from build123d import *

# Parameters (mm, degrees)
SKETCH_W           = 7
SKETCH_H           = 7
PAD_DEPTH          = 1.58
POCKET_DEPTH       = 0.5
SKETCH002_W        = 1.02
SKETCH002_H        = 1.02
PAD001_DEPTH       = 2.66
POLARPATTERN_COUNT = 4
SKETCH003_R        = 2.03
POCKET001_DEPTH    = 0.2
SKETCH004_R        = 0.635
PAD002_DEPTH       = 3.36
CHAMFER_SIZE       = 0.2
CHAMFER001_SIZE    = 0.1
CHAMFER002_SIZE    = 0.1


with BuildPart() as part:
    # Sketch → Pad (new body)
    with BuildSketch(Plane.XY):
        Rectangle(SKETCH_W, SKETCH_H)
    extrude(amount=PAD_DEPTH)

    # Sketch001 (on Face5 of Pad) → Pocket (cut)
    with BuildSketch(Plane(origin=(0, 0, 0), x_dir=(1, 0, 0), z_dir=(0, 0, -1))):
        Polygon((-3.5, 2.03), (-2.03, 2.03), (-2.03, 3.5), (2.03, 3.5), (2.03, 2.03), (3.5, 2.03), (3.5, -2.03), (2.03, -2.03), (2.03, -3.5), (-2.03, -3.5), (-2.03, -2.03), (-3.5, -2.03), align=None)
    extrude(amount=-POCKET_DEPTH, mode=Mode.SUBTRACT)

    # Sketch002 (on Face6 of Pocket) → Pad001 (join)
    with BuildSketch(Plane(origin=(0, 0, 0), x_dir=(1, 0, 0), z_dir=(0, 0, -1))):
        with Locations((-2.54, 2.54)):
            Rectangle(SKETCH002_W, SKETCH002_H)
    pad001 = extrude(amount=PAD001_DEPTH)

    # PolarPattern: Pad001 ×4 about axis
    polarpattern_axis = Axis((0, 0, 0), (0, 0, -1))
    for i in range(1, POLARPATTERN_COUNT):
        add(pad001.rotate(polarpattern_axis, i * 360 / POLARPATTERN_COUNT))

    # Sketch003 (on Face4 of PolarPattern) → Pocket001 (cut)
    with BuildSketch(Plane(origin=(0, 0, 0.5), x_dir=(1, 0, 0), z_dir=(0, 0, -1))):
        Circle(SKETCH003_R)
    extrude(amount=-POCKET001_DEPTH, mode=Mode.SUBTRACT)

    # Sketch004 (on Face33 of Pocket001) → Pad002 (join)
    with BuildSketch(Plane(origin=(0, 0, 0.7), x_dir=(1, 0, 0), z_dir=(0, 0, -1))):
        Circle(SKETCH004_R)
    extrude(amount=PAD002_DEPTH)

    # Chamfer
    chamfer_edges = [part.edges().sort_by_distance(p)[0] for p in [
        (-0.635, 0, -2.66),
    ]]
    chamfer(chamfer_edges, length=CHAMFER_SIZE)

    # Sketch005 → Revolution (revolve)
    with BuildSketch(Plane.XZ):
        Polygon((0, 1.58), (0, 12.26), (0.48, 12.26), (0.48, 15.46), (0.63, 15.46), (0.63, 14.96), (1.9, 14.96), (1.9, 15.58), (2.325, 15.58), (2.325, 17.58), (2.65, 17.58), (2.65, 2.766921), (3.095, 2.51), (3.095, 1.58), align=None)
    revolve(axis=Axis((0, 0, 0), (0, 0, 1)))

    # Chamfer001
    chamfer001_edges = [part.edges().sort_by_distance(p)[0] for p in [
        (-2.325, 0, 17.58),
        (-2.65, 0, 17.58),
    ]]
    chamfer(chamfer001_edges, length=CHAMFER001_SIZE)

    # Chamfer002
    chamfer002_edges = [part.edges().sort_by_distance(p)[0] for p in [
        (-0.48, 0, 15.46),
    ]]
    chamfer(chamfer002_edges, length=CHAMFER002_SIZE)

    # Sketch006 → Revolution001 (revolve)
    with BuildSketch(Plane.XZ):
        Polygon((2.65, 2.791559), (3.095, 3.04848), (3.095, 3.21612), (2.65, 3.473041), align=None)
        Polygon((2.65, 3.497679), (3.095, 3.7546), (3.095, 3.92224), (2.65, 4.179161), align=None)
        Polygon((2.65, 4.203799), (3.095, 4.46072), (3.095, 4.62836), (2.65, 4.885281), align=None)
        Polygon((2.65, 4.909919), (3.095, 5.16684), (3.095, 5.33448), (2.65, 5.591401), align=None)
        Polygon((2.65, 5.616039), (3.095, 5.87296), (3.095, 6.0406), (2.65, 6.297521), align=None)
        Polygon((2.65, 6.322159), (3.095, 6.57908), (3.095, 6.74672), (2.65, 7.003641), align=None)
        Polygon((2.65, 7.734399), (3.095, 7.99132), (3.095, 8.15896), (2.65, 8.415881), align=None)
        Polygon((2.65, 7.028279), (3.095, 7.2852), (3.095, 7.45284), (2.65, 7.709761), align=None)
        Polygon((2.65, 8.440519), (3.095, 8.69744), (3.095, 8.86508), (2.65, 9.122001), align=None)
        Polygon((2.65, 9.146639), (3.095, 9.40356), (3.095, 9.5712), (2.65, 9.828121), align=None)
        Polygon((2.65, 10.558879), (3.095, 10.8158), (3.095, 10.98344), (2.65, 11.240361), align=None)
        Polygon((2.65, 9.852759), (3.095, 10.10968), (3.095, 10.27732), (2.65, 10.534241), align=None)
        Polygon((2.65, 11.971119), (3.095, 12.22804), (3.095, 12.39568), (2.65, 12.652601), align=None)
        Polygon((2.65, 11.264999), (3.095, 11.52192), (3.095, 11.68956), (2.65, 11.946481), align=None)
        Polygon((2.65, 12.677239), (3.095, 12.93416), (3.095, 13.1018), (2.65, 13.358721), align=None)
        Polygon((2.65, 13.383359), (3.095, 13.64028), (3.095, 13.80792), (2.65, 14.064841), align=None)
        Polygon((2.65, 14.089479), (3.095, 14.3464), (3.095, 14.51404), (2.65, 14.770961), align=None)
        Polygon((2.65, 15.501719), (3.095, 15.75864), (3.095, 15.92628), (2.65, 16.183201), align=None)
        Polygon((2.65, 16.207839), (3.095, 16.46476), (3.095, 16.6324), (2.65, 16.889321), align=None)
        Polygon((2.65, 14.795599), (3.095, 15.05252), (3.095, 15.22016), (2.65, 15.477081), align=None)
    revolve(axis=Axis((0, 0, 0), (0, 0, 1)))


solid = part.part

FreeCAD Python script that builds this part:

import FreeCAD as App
import Part
import Sketcher

V = App.Vector
Q = App.Units.Quantity


def edges_at(feature, points):
    """Names of the edges that pass closest to the given points."""
    edges = feature.Shape.Edges
    near = lambda p: min(range(len(edges)), key=lambda i: edges[i].distToShape(Part.Vertex(*p))[0])
    return sorted({f"Edge{near(p) + 1}" for p in points})


def add_polygon(sketch, points):
    """Adds a closed chain of lines whose ends are joined by coincident constraints."""
    first, n = sketch.GeometryCount, len(points)
    for a, b in zip(points, points[1:] + points[:1]):
        sketch.addGeometry(Part.LineSegment(App.Vector(*a, 0), App.Vector(*b, 0)), False)
    for i in range(n):
        sketch.addConstraint(Sketcher.Constraint("Coincident", first + i, 2, first + (i + 1) % n, 1))

doc = App.newDocument("Part")
body = doc.addObject("PartDesign::Body", "Body")

# Sketch on XY plane
sketch1 = body.newObject("Sketcher::SketchObject", "Sketch")
sketch1.AttachmentSupport = (doc.getObject("XY_Plane"), [""])
sketch1.MapMode = "FlatFace"
add_polygon(sketch1, [(-4, 4), (-4, -4), (4, -4), (4, 4)])  # lines 0-3
sketch1.addConstraint([
    Sketcher.Constraint("Vertical", 0),
    Sketcher.Constraint("Horizontal", 1),
    Sketcher.Constraint("Vertical", 2),
    Sketcher.Constraint("Horizontal", 3),
    Sketcher.Constraint("Symmetric", 0, 2, 2, 2, -1, 1),
    Sketcher.Constraint("Equal", 3, 0),
    Sketcher.Constraint("DistanceX", 1, 1, 1, 2, 7.0),
])
pad1 = body.newObject("PartDesign::Pad", "Pad")
pad1.Profile = sketch1
pad1.Length = 1.58

# Sketch on XY plane
sketch2 = body.newObject("Sketcher::SketchObject", "Sketch001")
sketch2.AttachmentSupport = (doc.getObject("XY_Plane"), [""])
sketch2.MapMode = "FlatFace"
add_polygon(sketch2, [(-2, -2), (-3.5, -2), (-3.5, 2), (-2, 2), (-2, 3.5), (2, 3.5), (2, 2), (3.5, 2), (3.5, -2), (2, -2), (2, -3.5), (-2, -3.5)])  # lines 0-11
sketch2.addConstraint([
    Sketcher.Constraint("Horizontal", 0),
    Sketcher.Constraint("Vertical", 1),
    Sketcher.Constraint("Horizontal", 2),
    Sketcher.Constraint("Vertical", 3),
    Sketcher.Constraint("Horizontal", 4),
    Sketcher.Constraint("Vertical", 5),
    Sketcher.Constraint("Horizontal", 6),
    Sketcher.Constraint("Vertical", 7),
    Sketcher.Constraint("Horizontal", 8),
    Sketcher.Constraint("Vertical", 9),
    Sketcher.Constraint("Horizontal", 10),
    Sketcher.Constraint("Vertical", 11),
    Sketcher.Constraint("Symmetric", 0, 2, 6, 2, -1, 1),
    Sketcher.Constraint("Symmetric", 2, 2, 8, 2, -1, 1),
    Sketcher.Constraint("Symmetric", 4, 2, 10, 2, -1, 1),
    Sketcher.Constraint("Symmetric", 2, 2, 5, 2, -2),
    Sketcher.Constraint("Equal", 10, 1),
    Sketcher.Constraint("Equal", 8, 3),
    Sketcher.Constraint("DistanceX", 1, 2, 6, 2, 7.0),
    Sketcher.Constraint("DistanceX", 0, 2, 0, 1, 1.47),
])
pocket1 = body.newObject("PartDesign::Pocket", "Pocket")
pocket1.Profile = sketch2
pocket1.Length = 0.5
pocket1.Reversed = True

# Sketch on XY plane
sketch3 = body.newObject("Sketcher::SketchObject", "Sketch002")
sketch3.AttachmentSupport = (doc.getObject("XY_Plane"), [""])
sketch3.MapMode = "FlatFace"
add_polygon(sketch3, [(-3, -3), (-3, -2), (-2, -2), (-2, -3)])  # lines 0-3
sketch3.addConstraint([
    Sketcher.Constraint("Vertical", 0),
    Sketcher.Constraint("Horizontal", 1),
    Sketcher.Constraint("Vertical", 2),
    Sketcher.Constraint("Horizontal", 3),
    Sketcher.Constraint("Equal", 3, 0),
    Sketcher.Constraint("DistanceX", 1, 1, 1, 2, 1.02),
    Sketcher.Constraint("DistanceX", 0, 2, -1, 1, 3.05),
    Sketcher.Constraint("DistanceY", 0, 2, -1, 1, 2.03),
])
pad2 = body.newObject("PartDesign::Pad", "Pad001")
pad2.Profile = sketch3
pad2.Length = 2.66
pad2.Reversed = True
doc.recompute()

polarpattern = body.newObject("PartDesign::PolarPattern", "PolarPattern")
polarpattern.Originals = [pad2]
polarpattern.Axis = (doc.getObject("Z_Axis"), [""])
polarpattern.Angle = 360
polarpattern.Occurrences = 4
body.Tip = polarpattern

# Sketch on XY plane
sketch4 = body.newObject("Sketcher::SketchObject", "Sketch003")
sketch4.AttachmentSupport = (doc.getObject("XY_Plane"), [""])
sketch4.MapMode = "FlatFace"
sketch4.AttachmentOffset = App.Placement(V(0, 0, 0.5), App.Rotation())
sketch4.addGeometry(Part.Circle(V(0, 0, 0), V(0, 0, 1), 2), False)
sketch4.addConstraint([
    Sketcher.Constraint("Coincident", 0, 3, -1, 1),
    Sketcher.Constraint("Diameter", 0, 4.06),
])
pocket2 = body.newObject("PartDesign::Pocket", "Pocket001")
pocket2.Profile = sketch4
pocket2.Length = 0.2
pocket2.Reversed = True

# Sketch on XY plane
sketch5 = body.newObject("Sketcher::SketchObject", "Sketch004")
sketch5.AttachmentSupport = (doc.getObject("XY_Plane"), [""])
sketch5.MapMode = "FlatFace"
sketch5.AttachmentOffset = App.Placement(V(0, 0, 0.7), App.Rotation())
sketch5.addGeometry(Part.Circle(V(0, 0, 0), V(0, 0, 1), 0.6), False)
sketch5.addConstraint([
    Sketcher.Constraint("Coincident", 0, 3, -1, 1),
    Sketcher.Constraint("Diameter", 0, 1.27),
])
pad3 = body.newObject("PartDesign::Pad", "Pad002")
pad3.Profile = sketch5
pad3.Length = 3.36
pad3.Reversed = True
doc.recompute()

chamfer = body.newObject("PartDesign::Chamfer", "Chamfer")
chamfer.Base = (pad3, edges_at(pad3, [(-0.635, 0, -2.66)]))
chamfer.Size = 0.2

# Sketch on XZ plane
sketch6 = body.newObject("Sketcher::SketchObject", "Sketch005")
sketch6.AttachmentSupport = (doc.getObject("XZ_Plane"), [""])
sketch6.MapMode = "FlatFace"
add_polygon(sketch6, [(0, 12.26), (0, 1.58), (3.1, 1.58), (3.1, 2.51), (2.65, 2.77), (2.65, 17.58), (2.33, 17.58), (2.33, 15.58), (1.9, 15.58), (1.9, 14.96), (0.63, 14.96), (0.63, 15.46), (0.48, 15.46), (0.48, 12.26)])  # lines 0-13
sketch6.addConstraint([
    Sketcher.Constraint("Vertical", 0),
    Sketcher.Constraint("Horizontal", 1),
    Sketcher.Constraint("Vertical", 2),
    Sketcher.Constraint("Vertical", 4),
    Sketcher.Constraint("Horizontal", 5),
    Sketcher.Constraint("Vertical", 6),
    Sketcher.Constraint("Horizontal", 7),
    Sketcher.Constraint("Vertical", 8),
    Sketcher.Constraint("Horizontal", 9),
    Sketcher.Constraint("Vertical", 10),
    Sketcher.Constraint("Horizontal", 11),
    Sketcher.Constraint("Vertical", 12),
    Sketcher.Constraint("Horizontal", 13),
    Sketcher.Constraint("PointOnObject", 0, 2, -2),
    Sketcher.Constraint("DistanceY", 6, 2, 6, 1, 2.0),
    Sketcher.Constraint("Angle", 3, Q("149.999987 deg")),
    Sketcher.Constraint("DistanceY", 10, 1, 10, 2, 0.5),
    Sketcher.Constraint("DistanceY", 12, 2, 12, 1, 3.2),
    Sketcher.Constraint("DistanceY", 1, 2, 4, 2, 16.0),
    Sketcher.Constraint("DistanceX", 9, 2, 9, 1, 1.27),
    Sketcher.Constraint("DistanceX", 11, 2, 11, 1, 0.15),
    Sketcher.Constraint("DistanceX", 13, 2, 13, 1, 0.48),
    Sketcher.Constraint("DistanceY", 0, 2, 0, 1, 10.68),
    Sketcher.Constraint("DistanceY", 2, 1, 2, 2, 0.93),
    Sketcher.Constraint("DistanceX", 1, 1, 1, 2, 3.095),
    Sketcher.Constraint("DistanceX", 5, 2, 5, 1, 0.325),
    Sketcher.Constraint("DistanceX", 7, 2, 7, 1, 0.425),
    Sketcher.Constraint("DistanceY", -1, 1, 0, 2, 1.58),
])
revolution = body.newObject("PartDesign::Revolution", "Revolution")
revolution.Profile = sketch6
revolution.ReferenceAxis = (sketch6, ["V_Axis"])
revolution.Angle = 360
doc.recompute()

chamfer2 = body.newObject("PartDesign::Chamfer", "Chamfer001")
chamfer2.Base = (revolution, edges_at(revolution, [(-2.325, 0, 17.58), (-2.65, 0, 17.58)]))
chamfer2.Size = 0.1
doc.recompute()

chamfer3 = body.newObject("PartDesign::Chamfer", "Chamfer002")
chamfer3.Base = (chamfer2, edges_at(chamfer2, [(-0.48, 0, 15.46)]))
chamfer3.Size = 0.1

# Sketch on XZ plane
sketch7 = body.newObject("Sketcher::SketchObject", "Sketch006")
sketch7.AttachmentSupport = (doc.getObject("XZ_Plane"), [""])
sketch7.MapMode = "FlatFace"
add_polygon(sketch7, [(2.65, 2.79), (3.1, 3.05), (3.1, 3.22), (2.65, 3.47)])  # lines 0-3
add_polygon(sketch7, [(2.65, 3.5), (3.1, 3.75), (3.1, 3.92), (2.65, 4.18)])  # lines 4-7
add_polygon(sketch7, [(2.65, 4.2), (3.1, 4.46), (3.1, 4.63), (2.65, 4.89)])  # lines 8-11
add_polygon(sketch7, [(2.65, 4.91), (3.1, 5.17), (3.1, 5.33), (2.65, 5.59)])  # lines 12-15
add_polygon(sketch7, [(2.65, 5.62), (3.1, 5.87), (3.1, 6.04), (2.65, 6.3)])  # lines 16-19
add_polygon(sketch7, [(2.65, 6.32), (3.1, 6.58), (3.1, 6.75), (2.65, 7)])  # lines 20-23
add_polygon(sketch7, [(2.65, 7.73), (3.1, 7.99), (3.1, 8.16), (2.65, 8.42)])  # lines 24-27
add_polygon(sketch7, [(2.65, 7.03), (3.1, 7.29), (3.1, 7.45), (2.65, 7.71)])  # lines 28-31
add_polygon(sketch7, [(2.65, 8.44), (3.1, 8.7), (3.1, 8.87), (2.65, 9.12)])  # lines 32-35
add_polygon(sketch7, [(2.65, 9.15), (3.1, 9.4), (3.1, 9.57), (2.65, 9.83)])  # lines 36-39
add_polygon(sketch7, [(2.65, 10.56), (3.1, 10.82), (3.1, 10.98), (2.65, 11.24)])  # lines 40-43
add_polygon(sketch7, [(2.65, 9.85), (3.1, 10.11), (3.1, 10.28), (2.65, 10.53)])  # lines 44-47
add_polygon(sketch7, [(2.65, 11.97), (3.1, 12.23), (3.1, 12.4), (2.65, 12.65)])  # lines 48-51
add_polygon(sketch7, [(2.65, 11.26), (3.1, 11.52), (3.1, 11.69), (2.65, 11.95)])  # lines 52-55
add_polygon(sketch7, [(2.65, 12.68), (3.1, 12.93), (3.1, 13.1), (2.65, 13.36)])  # lines 56-59
add_polygon(sketch7, [(2.65, 13.38), (3.1, 13.64), (3.1, 13.81), (2.65, 14.06)])  # lines 60-63
add_polygon(sketch7, [(2.65, 14.09), (3.1, 14.35), (3.1, 14.51), (2.65, 14.77)])  # lines 64-67
add_polygon(sketch7, [(2.65, 15.5), (3.1, 15.76), (3.1, 15.93), (2.65, 16.18)])  # lines 68-71
add_polygon(sketch7, [(2.65, 16.21), (3.1, 16.46), (3.1, 16.63), (2.65, 16.89)])  # lines 72-75
add_polygon(sketch7, [(2.65, 14.8), (3.1, 15.05), (3.1, 15.22), (2.65, 15.48)])  # lines 76-79
sketch7.addConstraint([
    Sketcher.Constraint("Vertical", 1),
    Sketcher.Constraint("Vertical", 3),
    Sketcher.Constraint("Vertical", 5),
    Sketcher.Constraint("Vertical", 7),
    Sketcher.Constraint("Vertical", 9),
    Sketcher.Constraint("Vertical", 11),
    Sketcher.Constraint("Vertical", 13),
    Sketcher.Constraint("Vertical", 15),
    Sketcher.Constraint("Vertical", 17),
    Sketcher.Constraint("Vertical", 19),
    Sketcher.Constraint("Vertical", 21),
    Sketcher.Constraint("Vertical", 23),
    Sketcher.Constraint("Vertical", 25),
    Sketcher.Constraint("Vertical", 27),
    Sketcher.Constraint("Vertical", 29),
    Sketcher.Constraint("Vertical", 31),
    Sketcher.Constraint("Vertical", 33),
    Sketcher.Constraint("Vertical", 35),
    Sketcher.Constraint("Vertical", 37),
    Sketcher.Constraint("Vertical", 39),
    Sketcher.Constraint("Vertical", 41),
    Sketcher.Constraint("Vertical", 43),
    Sketcher.Constraint("Vertical", 45),
    Sketcher.Constraint("Vertical", 47),
    Sketcher.Constraint("Vertical", 49),
    Sketcher.Constraint("Vertical", 51),
    Sketcher.Constraint("Vertical", 53),
    Sketcher.Constraint("Vertical", 55),
    Sketcher.Constraint("Vertical", 57),
    Sketcher.Constraint("Vertical", 59),
    Sketcher.Constraint("Vertical", 61),
    Sketcher.Constraint("Vertical", 63),
    Sketcher.Constraint("Vertical", 65),
    Sketcher.Constraint("Vertical", 67),
    Sketcher.Constraint("Vertical", 69),
    Sketcher.Constraint("Vertical", 71),
    Sketcher.Constraint("Vertical", 73),
    Sketcher.Constraint("Vertical", 75),
    Sketcher.Constraint("Vertical", 77),
    Sketcher.Constraint("Vertical", 79),
    Sketcher.Constraint("Parallel", 0, 4),
    Sketcher.Constraint("Parallel", 2, 6),
    Sketcher.Constraint("Parallel", 4, 8),
    Sketcher.Constraint("Parallel", 6, 10),
    Sketcher.Constraint("Parallel", 8, 12),
    Sketcher.Constraint("Parallel", 10, 14),
    Sketcher.Constraint("Parallel", 12, 16),
    Sketcher.Constraint("Parallel", 14, 18),
    Sketcher.Constraint("Parallel", 16, 20),
    Sketcher.Constraint("Parallel", 18, 22),
    Sketcher.Constraint("Parallel", 20, 24),
    Sketcher.Constraint("Parallel", 22, 26),
    Sketcher.Constraint("Parallel", 24, 28),
    Sketcher.Constraint("Parallel", 26, 30),
    Sketcher.Constraint("Parallel", 28, 32),
    Sketcher.Constraint("Parallel", 30, 34),
    Sketcher.Constraint("Parallel", 32, 36),
    Sketcher.Constraint("Parallel", 34, 38),
    Sketcher.Constraint("Parallel", 36, 40),
    Sketcher.Constraint("Parallel", 38, 42),
    Sketcher.Constraint("Parallel", 40, 44),
    Sketcher.Constraint("Parallel", 42, 46),
    Sketcher.Constraint("Parallel", 44, 48),
    Sketcher.Constraint("Parallel", 46, 50),
    Sketcher.Constraint("Parallel", 48, 52),
    Sketcher.Constraint("Parallel", 50, 54),
    Sketcher.Constraint("Parallel", 52, 56),
    Sketcher.Constraint("Parallel", 54, 58),
    Sketcher.Constraint("Parallel", 56, 60),
    Sketcher.Constraint("Parallel", 58, 62),
    Sketcher.Constraint("Parallel", 60, 64),
    Sketcher.Constraint("Parallel", 62, 66),
    Sketcher.Constraint("Parallel", 64, 68),
    Sketcher.Constraint("Parallel", 66, 70),
    Sketcher.Constraint("Parallel", 68, 72),
    Sketcher.Constraint("Parallel", 70, 74),
    Sketcher.Constraint("Parallel", 72, 76),
    Sketcher.Constraint("Parallel", 74, 78),
    Sketcher.Constraint("Vertical", 1, 2, 4, 2),
    Sketcher.Constraint("Vertical", 3, 2, 6, 2),
    Sketcher.Constraint("Vertical", 5, 2, 8, 2),
    Sketcher.Constraint("Vertical", 7, 2, 10, 2),
    Sketcher.Constraint("Vertical", 9, 2, 12, 2),
    Sketcher.Constraint("Vertical", 11, 2, 14, 2),
    Sketcher.Constraint("Vertical", 13, 2, 16, 2),
    Sketcher.Constraint("Vertical", 15, 2, 18, 2),
    Sketcher.Constraint("Vertical", 17, 2, 20, 2),
    Sketcher.Constraint("Vertical", 19, 2, 22, 2),
    Sketcher.Constraint("Vertical", 21, 2, 24, 2),
    Sketcher.Constraint("Vertical", 23, 2, 26, 2),
    Sketcher.Constraint("Vertical", 25, 2, 28, 2),
    Sketcher.Constraint("Vertical", 27, 2, 30, 2),
    Sketcher.Constraint("Vertical", 29, 2, 32, 2),
    Sketcher.Constraint("Vertical", 31, 2, 34, 2),
    Sketcher.Constraint("Vertical", 33, 2, 36, 2),
    Sketcher.Constraint("Vertical", 35, 2, 38, 2),
    Sketcher.Constraint("Vertical", 37, 2, 40, 2),
    Sketcher.Constraint("Vertical", 39, 2, 42, 2),
    Sketcher.Constraint("Vertical", 41, 2, 44, 2),
    Sketcher.Constraint("Vertical", 43, 2, 46, 2),
    Sketcher.Constraint("Vertical", 45, 2, 48, 2),
    Sketcher.Constraint("Vertical", 47, 2, 50, 2),
    Sketcher.Constraint("Vertical", 49, 2, 52, 2),
    Sketcher.Constraint("Vertical", 51, 2, 54, 2),
    Sketcher.Constraint("Vertical", 53, 2, 56, 2),
    Sketcher.Constraint("Vertical", 55, 2, 58, 2),
    Sketcher.Constraint("Vertical", 57, 2, 60, 2),
    Sketcher.Constraint("Vertical", 59, 2, 62, 2),
    Sketcher.Constraint("Vertical", 61, 2, 64, 2),
    Sketcher.Constraint("Vertical", 63, 2, 66, 2),
    Sketcher.Constraint("Vertical", 65, 2, 68, 2),
    Sketcher.Constraint("Vertical", 67, 2, 70, 2),
    Sketcher.Constraint("Vertical", 69, 2, 72, 2),
    Sketcher.Constraint("Vertical", 71, 2, 74, 2),
    Sketcher.Constraint("Vertical", 73, 2, 76, 2),
    Sketcher.Constraint("Vertical", 75, 2, 78, 2),
    Sketcher.Constraint("Equal", 1, 5),
    Sketcher.Constraint("Equal", 5, 9),
    Sketcher.Constraint("Equal", 9, 13),
    Sketcher.Constraint("Equal", 13, 17),
    Sketcher.Constraint("Equal", 17, 21),
    Sketcher.Constraint("Equal", 21, 25),
    Sketcher.Constraint("Equal", 25, 29),
    Sketcher.Constraint("Equal", 29, 33),
    Sketcher.Constraint("Equal", 33, 37),
    Sketcher.Constraint("Equal", 37, 41),
    Sketcher.Constraint("Equal", 41, 45),
    Sketcher.Constraint("Equal", 45, 49),
    Sketcher.Constraint("Equal", 49, 53),
    Sketcher.Constraint("Equal", 53, 57),
    Sketcher.Constraint("Equal", 57, 61),
    Sketcher.Constraint("Equal", 61, 65),
    Sketcher.Constraint("Equal", 65, 69),
    Sketcher.Constraint("Equal", 69, 73),
    Sketcher.Constraint("Equal", 73, 77),
    Sketcher.Constraint("Equal", 0, 2),
    Sketcher.Constraint("Angle", 0, Q("30.000013 deg")),
    Sketcher.Constraint("DistanceX", -1, 1, 2, 2, 2.65),
    Sketcher.Constraint("DistanceX", -1, 1, 0, 2, 3.095),
    Sketcher.Constraint("DistanceY", -1, 1, 34, 2, 9.122001),
    Sketcher.Constraint("DistanceY", -1, 1, 55, 2, 11.264999),
    Sketcher.Constraint("DistanceY", 1, 1, 1, 2, 0.16764),
    Sketcher.Constraint("DistanceY", -1, 1, 4, 2, 3.7546),
    Sketcher.Constraint("DistanceY", -1, 1, 11, 2, 4.203799),
    Sketcher.Constraint("DistanceY", -1, 1, 14, 2, 5.591401),
    Sketcher.Constraint("DistanceY", -1, 1, 17, 2, 6.0406),
    Sketcher.Constraint("DistanceY", -1, 1, 27, 2, 7.734399),
    Sketcher.Constraint("DistanceY", -1, 1, 28, 2, 7.2852),
    Sketcher.Constraint("DistanceY", -1, 1, 37, 2, 9.5712),
    Sketcher.Constraint("DistanceY", -1, 1, 40, 2, 10.8158),
    Sketcher.Constraint("DistanceY", -1, 1, 50, 2, 12.652601),
    Sketcher.Constraint("DistanceY", -1, 1, 57, 2, 13.1018),
    Sketcher.Constraint("DistanceY", -1, 1, 64, 2, 14.3464),
    Sketcher.Constraint("DistanceY", -1, 1, 70, 2, 16.183201),
    Sketcher.Constraint("DistanceY", -1, 1, 73, 2, 16.6324),
    Sketcher.Constraint("DistanceY", -1, 1, 79, 2, 14.795599),
    Sketcher.Constraint("DistanceY", -1, 1, 0, 2, 3.04848),
    Sketcher.Constraint("DistanceY", -1, 1, 20, 2, 6.57908),
    Sketcher.Constraint("DistanceY", -1, 1, 44, 2, 10.10968),
    Sketcher.Constraint("DistanceY", -1, 1, 60, 2, 13.64028),
])
revolution2 = body.newObject("PartDesign::Revolution", "Revolution001")
revolution2.Profile = sketch7
revolution2.ReferenceAxis = (sketch7, ["V_Axis"])
revolution2.Angle = 360

doc.recompute()
